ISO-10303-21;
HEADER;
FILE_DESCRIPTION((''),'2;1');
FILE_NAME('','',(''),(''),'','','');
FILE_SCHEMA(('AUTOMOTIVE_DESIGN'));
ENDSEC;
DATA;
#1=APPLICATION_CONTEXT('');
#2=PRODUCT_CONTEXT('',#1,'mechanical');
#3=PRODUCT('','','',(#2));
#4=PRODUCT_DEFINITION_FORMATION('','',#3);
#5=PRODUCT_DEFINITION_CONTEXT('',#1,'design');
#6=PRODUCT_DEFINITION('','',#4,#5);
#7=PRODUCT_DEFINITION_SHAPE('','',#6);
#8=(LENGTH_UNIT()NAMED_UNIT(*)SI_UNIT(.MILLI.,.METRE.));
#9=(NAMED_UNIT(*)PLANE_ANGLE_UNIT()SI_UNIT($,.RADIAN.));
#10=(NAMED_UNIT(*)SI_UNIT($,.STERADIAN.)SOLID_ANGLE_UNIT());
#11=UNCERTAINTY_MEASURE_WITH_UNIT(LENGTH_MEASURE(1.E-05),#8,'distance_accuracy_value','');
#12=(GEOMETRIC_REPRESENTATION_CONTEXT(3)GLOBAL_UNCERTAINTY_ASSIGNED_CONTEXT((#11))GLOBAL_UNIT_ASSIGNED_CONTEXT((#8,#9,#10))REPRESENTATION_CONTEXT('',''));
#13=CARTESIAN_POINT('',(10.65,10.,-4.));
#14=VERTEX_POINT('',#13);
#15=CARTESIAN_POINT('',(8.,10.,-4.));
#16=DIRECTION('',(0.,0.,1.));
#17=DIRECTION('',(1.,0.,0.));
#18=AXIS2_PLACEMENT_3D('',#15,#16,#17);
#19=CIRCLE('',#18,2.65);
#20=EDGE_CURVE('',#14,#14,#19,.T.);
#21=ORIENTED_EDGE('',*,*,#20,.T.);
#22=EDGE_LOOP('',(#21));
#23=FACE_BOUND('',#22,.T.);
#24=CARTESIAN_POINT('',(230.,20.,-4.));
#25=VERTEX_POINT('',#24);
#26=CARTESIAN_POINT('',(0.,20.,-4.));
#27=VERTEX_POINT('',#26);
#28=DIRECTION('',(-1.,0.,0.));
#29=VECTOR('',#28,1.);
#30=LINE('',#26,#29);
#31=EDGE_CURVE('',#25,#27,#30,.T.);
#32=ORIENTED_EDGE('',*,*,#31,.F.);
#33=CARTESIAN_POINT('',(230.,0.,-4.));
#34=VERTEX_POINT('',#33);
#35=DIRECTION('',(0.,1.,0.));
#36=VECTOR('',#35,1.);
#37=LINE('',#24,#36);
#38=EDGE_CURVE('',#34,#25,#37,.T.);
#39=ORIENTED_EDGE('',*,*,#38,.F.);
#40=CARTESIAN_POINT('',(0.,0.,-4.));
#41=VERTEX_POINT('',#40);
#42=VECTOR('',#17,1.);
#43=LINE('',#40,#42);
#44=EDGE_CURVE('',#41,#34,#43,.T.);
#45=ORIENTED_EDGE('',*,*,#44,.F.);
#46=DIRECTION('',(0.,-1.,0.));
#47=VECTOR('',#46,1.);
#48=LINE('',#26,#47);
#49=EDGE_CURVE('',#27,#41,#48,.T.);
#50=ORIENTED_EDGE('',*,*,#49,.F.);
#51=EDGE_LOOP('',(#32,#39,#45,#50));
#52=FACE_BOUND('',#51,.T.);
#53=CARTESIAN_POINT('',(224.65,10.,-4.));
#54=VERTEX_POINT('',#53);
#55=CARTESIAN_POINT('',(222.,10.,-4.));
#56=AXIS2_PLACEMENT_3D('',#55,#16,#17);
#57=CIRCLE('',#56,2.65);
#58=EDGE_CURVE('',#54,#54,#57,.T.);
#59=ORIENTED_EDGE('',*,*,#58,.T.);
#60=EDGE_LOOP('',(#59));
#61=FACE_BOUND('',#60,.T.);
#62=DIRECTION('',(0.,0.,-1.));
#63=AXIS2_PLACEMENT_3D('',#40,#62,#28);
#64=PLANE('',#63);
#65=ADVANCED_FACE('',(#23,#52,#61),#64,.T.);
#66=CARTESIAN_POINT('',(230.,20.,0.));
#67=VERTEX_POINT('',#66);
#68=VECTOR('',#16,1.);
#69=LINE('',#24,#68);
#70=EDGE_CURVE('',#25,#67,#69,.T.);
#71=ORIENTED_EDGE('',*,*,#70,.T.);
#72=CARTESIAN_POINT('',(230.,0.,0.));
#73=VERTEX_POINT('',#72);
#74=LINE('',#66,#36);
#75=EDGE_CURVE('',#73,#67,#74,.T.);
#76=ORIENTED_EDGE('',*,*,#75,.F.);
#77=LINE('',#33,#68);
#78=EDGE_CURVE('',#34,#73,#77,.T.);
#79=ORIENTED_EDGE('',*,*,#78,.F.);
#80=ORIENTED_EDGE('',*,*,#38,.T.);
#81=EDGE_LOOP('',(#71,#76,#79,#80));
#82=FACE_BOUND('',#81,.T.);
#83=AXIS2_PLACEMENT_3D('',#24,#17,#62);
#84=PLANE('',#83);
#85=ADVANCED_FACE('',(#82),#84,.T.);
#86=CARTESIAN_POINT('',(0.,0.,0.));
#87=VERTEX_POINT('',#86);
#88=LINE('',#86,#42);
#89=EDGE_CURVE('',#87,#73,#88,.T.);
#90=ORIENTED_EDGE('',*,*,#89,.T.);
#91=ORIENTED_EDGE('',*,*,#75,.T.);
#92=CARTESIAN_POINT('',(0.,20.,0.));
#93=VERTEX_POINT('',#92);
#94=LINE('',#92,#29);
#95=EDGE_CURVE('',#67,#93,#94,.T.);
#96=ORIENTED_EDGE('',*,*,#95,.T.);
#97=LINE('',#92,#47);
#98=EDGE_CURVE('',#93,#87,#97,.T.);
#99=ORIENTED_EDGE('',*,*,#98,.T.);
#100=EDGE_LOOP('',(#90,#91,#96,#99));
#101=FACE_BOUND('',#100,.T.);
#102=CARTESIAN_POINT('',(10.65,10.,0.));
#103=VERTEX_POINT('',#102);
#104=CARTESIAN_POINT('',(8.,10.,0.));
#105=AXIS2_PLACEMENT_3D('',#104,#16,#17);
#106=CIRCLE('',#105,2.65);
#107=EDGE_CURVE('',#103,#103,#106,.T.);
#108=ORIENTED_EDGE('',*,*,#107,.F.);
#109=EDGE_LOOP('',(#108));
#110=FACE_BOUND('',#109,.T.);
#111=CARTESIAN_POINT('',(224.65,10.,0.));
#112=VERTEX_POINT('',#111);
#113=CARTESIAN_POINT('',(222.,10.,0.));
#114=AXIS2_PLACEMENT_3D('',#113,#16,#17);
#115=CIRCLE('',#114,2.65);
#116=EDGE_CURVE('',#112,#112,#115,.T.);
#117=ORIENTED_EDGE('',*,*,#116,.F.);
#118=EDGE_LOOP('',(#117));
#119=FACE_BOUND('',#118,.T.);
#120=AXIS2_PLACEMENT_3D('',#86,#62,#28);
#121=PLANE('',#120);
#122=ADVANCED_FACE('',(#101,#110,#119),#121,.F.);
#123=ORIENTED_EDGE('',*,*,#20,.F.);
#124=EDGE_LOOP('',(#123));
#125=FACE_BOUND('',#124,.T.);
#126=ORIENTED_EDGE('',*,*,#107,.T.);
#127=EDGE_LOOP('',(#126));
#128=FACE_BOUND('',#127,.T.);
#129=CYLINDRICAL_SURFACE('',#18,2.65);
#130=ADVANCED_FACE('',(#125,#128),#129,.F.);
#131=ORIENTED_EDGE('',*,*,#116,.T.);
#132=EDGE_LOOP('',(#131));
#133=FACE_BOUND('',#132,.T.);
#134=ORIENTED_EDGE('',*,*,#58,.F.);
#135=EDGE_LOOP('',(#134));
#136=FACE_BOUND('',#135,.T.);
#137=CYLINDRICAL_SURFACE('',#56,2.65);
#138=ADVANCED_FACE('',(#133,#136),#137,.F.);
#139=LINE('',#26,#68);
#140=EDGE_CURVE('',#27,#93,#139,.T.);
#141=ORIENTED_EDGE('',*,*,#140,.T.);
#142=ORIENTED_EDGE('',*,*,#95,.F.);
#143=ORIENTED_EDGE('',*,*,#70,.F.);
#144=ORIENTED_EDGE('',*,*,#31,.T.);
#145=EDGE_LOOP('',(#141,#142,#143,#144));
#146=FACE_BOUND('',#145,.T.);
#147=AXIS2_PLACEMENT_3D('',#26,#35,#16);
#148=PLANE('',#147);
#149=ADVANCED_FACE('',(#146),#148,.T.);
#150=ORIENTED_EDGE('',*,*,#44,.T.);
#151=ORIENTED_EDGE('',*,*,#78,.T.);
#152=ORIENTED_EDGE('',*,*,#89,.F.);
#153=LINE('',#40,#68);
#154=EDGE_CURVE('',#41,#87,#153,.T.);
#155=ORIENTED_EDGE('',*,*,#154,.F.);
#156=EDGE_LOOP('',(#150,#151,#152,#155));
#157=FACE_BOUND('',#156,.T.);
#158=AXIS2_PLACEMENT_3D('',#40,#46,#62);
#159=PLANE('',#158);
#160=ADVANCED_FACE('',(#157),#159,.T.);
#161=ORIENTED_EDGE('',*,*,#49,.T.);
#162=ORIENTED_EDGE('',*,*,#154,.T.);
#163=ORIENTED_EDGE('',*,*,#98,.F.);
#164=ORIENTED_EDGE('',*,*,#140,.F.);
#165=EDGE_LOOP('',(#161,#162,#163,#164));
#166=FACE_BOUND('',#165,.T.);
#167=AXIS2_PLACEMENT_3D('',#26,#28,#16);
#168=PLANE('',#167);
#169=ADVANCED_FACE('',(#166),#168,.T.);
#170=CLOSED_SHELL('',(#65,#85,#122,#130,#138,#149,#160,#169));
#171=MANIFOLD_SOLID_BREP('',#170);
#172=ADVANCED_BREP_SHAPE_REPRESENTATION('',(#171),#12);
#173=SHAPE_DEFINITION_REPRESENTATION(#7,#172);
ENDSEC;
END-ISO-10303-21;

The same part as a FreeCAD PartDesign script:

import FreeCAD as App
import Part
import Sketcher
Q = App.Units.Quantity


def add_polygon(sketch, points):
    """Adds a closed chain of lines whose ends are joined by coincident constraints."""
    first, n = sketch.GeometryCount, len(points)
    for a, b in zip(points, points[1:] + points[:1]):
        sketch.addGeometry(Part.LineSegment(App.Vector(*a, 0), App.Vector(*b, 0)), False)
    for i in range(n):
        sketch.addConstraint(Sketcher.Constraint("Coincident", first + i, 2, first + (i + 1) % n, 1))

doc = App.newDocument("Part")
body = doc.addObject("PartDesign::Body", "Body")

# Sketch on XY plane
sketch1 = body.newObject("Sketcher::SketchObject", "Sketch")
sketch1.AttachmentSupport = (doc.getObject("XY_Plane"), [""])
sketch1.MapMode = "FlatFace"
add_polygon(sketch1, [(0, 20), (0, 0), (230, 0), (230, 20)])  # lines 0-3
sketch1.addGeometry(Part.Circle(App.Vector(8, 10, 0), App.Vector(0, 0, 1), 2.6), False)  # 4
sketch1.addGeometry(Part.Circle(App.Vector(222, 10, 0), App.Vector(0, 0, 1), 2.6), False)  # 5
sketch1.addConstraint([
    Sketcher.Constraint("Vertical", 0),
    Sketcher.Constraint("Horizontal", 1),
    Sketcher.Constraint("Vertical", 2),
    Sketcher.Constraint("Horizontal", 3),
    Sketcher.Constraint("Coincident", 0, 2, -1, 1),
    Sketcher.Constraint("Equal", 4, 5),
    Sketcher.Constraint("Horizontal", 4, 3, 5, 3),
    Sketcher.Constraint("Diameter", 4, Q("5.3 mm")),
    Sketcher.Constraint("DistanceX", 1, 1, 1, 2, Q("230 mm")),
    Sketcher.Constraint("DistanceY", 0, 2, 0, 1, Q("20 mm")),
    Sketcher.Constraint("DistanceX", -1, 1, 4, 3, Q("8 mm")),
    Sketcher.Constraint("DistanceY", -1, 1, 4, 3, Q("10 mm")),
    Sketcher.Constraint("DistanceX", -1, 1, 5, 3, Q("222 mm")),
])
pad1 = body.newObject("PartDesign::Pad", "Pad")
pad1.Profile = sketch1
pad1.Length = 4
pad1.Reversed = True

doc.recompute()
